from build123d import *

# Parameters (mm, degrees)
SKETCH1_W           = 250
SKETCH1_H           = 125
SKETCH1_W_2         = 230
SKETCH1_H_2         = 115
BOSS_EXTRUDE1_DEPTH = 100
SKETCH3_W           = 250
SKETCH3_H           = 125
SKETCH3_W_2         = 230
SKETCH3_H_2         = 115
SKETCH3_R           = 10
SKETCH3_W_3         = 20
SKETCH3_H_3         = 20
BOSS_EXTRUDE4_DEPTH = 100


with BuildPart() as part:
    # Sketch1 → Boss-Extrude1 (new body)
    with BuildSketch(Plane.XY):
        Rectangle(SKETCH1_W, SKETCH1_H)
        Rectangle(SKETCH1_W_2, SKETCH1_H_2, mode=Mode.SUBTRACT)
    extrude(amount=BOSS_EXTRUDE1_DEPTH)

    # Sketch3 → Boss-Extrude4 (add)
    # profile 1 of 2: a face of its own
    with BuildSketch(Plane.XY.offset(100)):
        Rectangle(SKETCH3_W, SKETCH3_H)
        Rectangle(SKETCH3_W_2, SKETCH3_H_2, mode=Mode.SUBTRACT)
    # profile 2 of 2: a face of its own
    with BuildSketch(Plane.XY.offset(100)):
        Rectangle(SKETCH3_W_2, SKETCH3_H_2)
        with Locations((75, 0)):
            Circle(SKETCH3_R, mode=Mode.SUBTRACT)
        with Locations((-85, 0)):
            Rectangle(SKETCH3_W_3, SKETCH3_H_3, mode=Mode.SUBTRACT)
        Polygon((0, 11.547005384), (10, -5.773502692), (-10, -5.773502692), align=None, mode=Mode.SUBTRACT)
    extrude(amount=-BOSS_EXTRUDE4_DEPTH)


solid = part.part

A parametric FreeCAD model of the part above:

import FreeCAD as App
import Part
import Sketcher
Q = App.Units.Quantity


def add_polygon(sketch, points):
    """Adds a closed chain of lines whose ends are joined by coincident constraints."""
    first, n = sketch.GeometryCount, len(points)
    for a, b in zip(points, points[1:] + points[:1]):
        sketch.addGeometry(Part.LineSegment(App.Vector(*a, 0), App.Vector(*b, 0)), False)
    for i in range(n):
        sketch.addConstraint(Sketcher.Constraint("Coincident", first + i, 2, first + (i + 1) % n, 1))

doc = App.newDocument("Part")
params = doc.addObject("Spreadsheet::Sheet", "Params")
for row, (alias, value) in enumerate([
    ("sketch1_width", "250 mm"),
    ("sketch1_width2", "230 mm"),
    ("sketch1_height", "125 mm"),
    ("sketch1_height2", "115 mm"),
    ("pad1_length", "100 mm"),
    ("sketch2_diameter", "20 mm"),
    ("sketch2_width", "250 mm"),
    ("sketch2_width2", "20 mm"),
    ("sketch2_height", "125 mm"),
    ("pad2_length", "100 mm"),
], start=1):
    params.set(f"A{row}", alias)
    params.set(f"B{row}", "=" + value)
    params.setAlias(f"B{row}", alias)

body = doc.addObject("PartDesign::Body", "Body")

# Sketch on XY plane
sketch1 = doc.addObject("Sketcher::SketchObject", "Sketch")
body.addObject(sketch1)
sketch1.AttachmentSupport = (doc.XY_Plane, [""])
sketch1.MapMode = "FlatFace"
add_polygon(sketch1, [(-125, 62.5), (-125, -62.5), (125, -62.5), (125, 62.5)])  # lines 0-3
add_polygon(sketch1, [(115, -57.5), (-115, -57.5), (-115, 57.5), (115, 57.5)])  # lines 4-7
sketch1.addConstraint(Sketcher.Constraint("Vertical", 0))
sketch1.addConstraint(Sketcher.Constraint("Horizontal", 1))
sketch1.addConstraint(Sketcher.Constraint("Vertical", 2))
sketch1.addConstraint(Sketcher.Constraint("Horizontal", 3))
sketch1.addConstraint(Sketcher.Constraint("Horizontal", 4))
sketch1.addConstraint(Sketcher.Constraint("Vertical", 5))
sketch1.addConstraint(Sketcher.Constraint("Horizontal", 6))
sketch1.addConstraint(Sketcher.Constraint("Vertical", 7))
sketch1.addConstraint(Sketcher.Constraint("Symmetric", 0, 2, 2, 2, -1, 1))
sketch1.addConstraint(Sketcher.Constraint("Symmetric", 4, 2, 6, 2, -1, 1))
sketch1.addConstraint(Sketcher.Constraint("DistanceX", 1, 1, 1, 2, 250.0))
sketch1.addConstraint(Sketcher.Constraint("DistanceX", 4, 2, 4, 1, 230.0))
sketch1.addConstraint(Sketcher.Constraint("DistanceY", 0, 2, 0, 1, 125.0))
sketch1.addConstraint(Sketcher.Constraint("DistanceY", 5, 1, 5, 2, 115.0))
sketch1.setExpression("Constraints[18]", "Params.sketch1_width")
sketch1.setExpression("Constraints[19]", "Params.sketch1_width2")
sketch1.setExpression("Constraints[20]", "Params.sketch1_height")
sketch1.setExpression("Constraints[21]", "Params.sketch1_height2")
pad1 = doc.addObject("PartDesign::Pad", "Pad")
body.addObject(pad1)
pad1.Profile = sketch1
pad1.setExpression("Length", "Params.pad1_length")

# Sketch on XY plane
sketch2 = doc.addObject("Sketcher::SketchObject", "Sketch001")
body.addObject(sketch2)
sketch2.AttachmentSupport = (doc.XY_Plane, [""])
sketch2.MapMode = "FlatFace"
sketch2.AttachmentOffset = App.Placement(App.Vector(0, 0, 100), App.Rotation())
add_polygon(sketch2, [(-125, 62.5), (-125, -62.5), (125, -62.5), (125, 62.5)])  # lines 0-3
sketch2.addGeometry(Part.Circle(App.Vector(75, 0, 0), App.Vector(0, 0, 1), 10), False)  # 4
add_polygon(sketch2, [(0, 11.547005), (10, -5.773503), (-10, -5.773503)])  # lines 5-7
add_polygon(sketch2, [(-75, -10), (-95, -10), (-95, 10), (-75, 10)])  # lines 8-11
sketch2.addConstraint(Sketcher.Constraint("Vertical", 0))
sketch2.addConstraint(Sketcher.Constraint("Horizontal", 1))
sketch2.addConstraint(Sketcher.Constraint("Vertical", 2))
sketch2.addConstraint(Sketcher.Constraint("Horizontal", 3))
sketch2.addConstraint(Sketcher.Constraint("Horizontal", 6))
sketch2.addConstraint(Sketcher.Constraint("Horizontal", 8))
sketch2.addConstraint(Sketcher.Constraint("Vertical", 9))
sketch2.addConstraint(Sketcher.Constraint("Horizontal", 10))
sketch2.addConstraint(Sketcher.Constraint("Vertical", 11))
sketch2.addConstraint(Sketcher.Constraint("Symmetric", 0, 2, 2, 2, -1, 1))
sketch2.addConstraint(Sketcher.Constraint("PointOnObject", 4, 3, -1))
sketch2.addConstraint(Sketcher.Constraint("PointOnObject", 7, 2, -2))
sketch2.addConstraint(Sketcher.Constraint("Equal", 6, 8))
sketch2.addConstraint(Sketcher.Constraint("Equal", 10, 9))
sketch2.addConstraint(Sketcher.Constraint("Equal", 5, 7))
sketch2.addConstraint(Sketcher.Constraint("Diameter", 4, 20.0))
sketch2.addConstraint(Sketcher.Constraint("DistanceX", 1, 1, 1, 2, 250.0))
sketch2.addConstraint(Sketcher.Constraint("DistanceX", 6, 2, 6, 1, 20.0))
sketch2.addConstraint(Sketcher.Constraint("DistanceY", 0, 2, 0, 1, 125.0))
sketch2.addConstraint(Sketcher.Constraint("Angle", 5, Q("-60 deg")))
sketch2.addConstraint(Sketcher.Constraint("DistanceX", -1, 1, 4, 3, 75.0))
sketch2.addConstraint(Sketcher.Constraint("DistanceX", 8, 2, -1, 1, 95.0))
sketch2.addConstraint(Sketcher.Constraint("DistanceY", 8, 2, -1, 1, 10.0))
sketch2.addConstraint(Sketcher.Constraint("DistanceY", 5, 2, -1, 1, 5.773503))
sketch2.setExpression("Constraints[26]", "Params.sketch2_diameter")
sketch2.setExpression("Constraints[27]", "Params.sketch2_width")
sketch2.setExpression("Constraints[28]", "Params.sketch2_width2")
sketch2.setExpression("Constraints[29]", "Params.sketch2_height")
pad2 = doc.addObject("PartDesign::Pad", "Pad001")
body.addObject(pad2)
pad2.Profile = sketch2
pad2.setExpression("Length", "Params.pad2_length")
pad2.Reversed = True

doc.recompute()
